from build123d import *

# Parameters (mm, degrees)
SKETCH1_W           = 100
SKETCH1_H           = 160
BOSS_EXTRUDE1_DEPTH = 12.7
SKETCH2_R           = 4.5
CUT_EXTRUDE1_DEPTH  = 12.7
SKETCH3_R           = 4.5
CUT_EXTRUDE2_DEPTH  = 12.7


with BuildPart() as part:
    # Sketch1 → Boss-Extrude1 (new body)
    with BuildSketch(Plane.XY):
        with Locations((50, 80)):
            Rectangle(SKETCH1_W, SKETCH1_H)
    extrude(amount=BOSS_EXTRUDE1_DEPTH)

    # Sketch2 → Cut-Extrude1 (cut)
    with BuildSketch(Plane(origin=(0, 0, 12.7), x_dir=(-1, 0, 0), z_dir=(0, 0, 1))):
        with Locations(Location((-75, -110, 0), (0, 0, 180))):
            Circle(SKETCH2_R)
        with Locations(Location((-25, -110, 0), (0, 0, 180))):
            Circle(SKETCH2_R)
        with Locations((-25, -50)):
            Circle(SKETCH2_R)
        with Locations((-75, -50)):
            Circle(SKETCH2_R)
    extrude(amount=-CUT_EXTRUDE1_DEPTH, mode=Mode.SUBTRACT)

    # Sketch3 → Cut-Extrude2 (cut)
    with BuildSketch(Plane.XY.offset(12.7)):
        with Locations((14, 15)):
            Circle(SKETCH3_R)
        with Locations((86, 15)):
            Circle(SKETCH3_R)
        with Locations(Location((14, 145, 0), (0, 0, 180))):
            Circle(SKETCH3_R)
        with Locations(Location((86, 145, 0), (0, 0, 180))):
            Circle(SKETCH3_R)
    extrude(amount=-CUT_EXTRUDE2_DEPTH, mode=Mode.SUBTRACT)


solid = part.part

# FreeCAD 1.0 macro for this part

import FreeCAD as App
import Part
import Sketcher

V = App.Vector


def add_polygon(sketch, points):
    """Adds a closed chain of lines whose ends are joined by coincident constraints."""
    first, n = sketch.GeometryCount, len(points)
    for a, b in zip(points, points[1:] + points[:1]):
        sketch.addGeometry(Part.LineSegment(App.Vector(*a, 0), App.Vector(*b, 0)), False)
    for i in range(n):
        sketch.addConstraint(Sketcher.Constraint("Coincident", first + i, 2, first + (i + 1) % n, 1))

doc = App.newDocument("Part")
body = doc.addObject("PartDesign::Body", "Body")

# Sketch on XY plane
sketch1 = doc.addObject("Sketcher::SketchObject", "Sketch")
body.addObject(sketch1)
sketch1.AttachmentSupport = (doc.XY_Plane, [""])
sketch1.MapMode = "FlatFace"
add_polygon(sketch1, [(0, 160), (0, 0), (100, 0), (100, 160)])  # lines 0-3
sketch1.addConstraint(Sketcher.Constraint("Vertical", 0))
sketch1.addConstraint(Sketcher.Constraint("Horizontal", 1))
sketch1.addConstraint(Sketcher.Constraint("Vertical", 2))
sketch1.addConstraint(Sketcher.Constraint("Horizontal", 3))
sketch1.addConstraint(Sketcher.Constraint("Coincident", 0, 2, -1, 1))
sketch1.addConstraint(Sketcher.Constraint("DistanceX", 1, 1, 1, 2, 100.0))
sketch1.addConstraint(Sketcher.Constraint("DistanceY", 0, 2, 0, 1, 160.0))
pad1 = doc.addObject("PartDesign::Pad", "Pad")
body.addObject(pad1)
pad1.Profile = sketch1
pad1.Length = 12.7

# Sketch on XY plane
sketch2 = doc.addObject("Sketcher::SketchObject", "Sketch001")
body.addObject(sketch2)
sketch2.AttachmentSupport = (doc.XY_Plane, [""])
sketch2.MapMode = "FlatFace"
sketch2.AttachmentOffset = App.Placement(V(0, 0, 12.7), App.Rotation())
sketch2.addGeometry(Part.Circle(V(75, 110, 0), V(0, 0, 1), 4.5), False)
sketch2.addGeometry(Part.Circle(V(25, 110, 0), V(0, 0, 1), 4.5), False)
sketch2.addGeometry(Part.Circle(V(25, 50, 0), V(0, 0, 1), 4.5), False)
sketch2.addGeometry(Part.Circle(V(75, 50, 0), V(0, 0, 1), 4.5), False)
sketch2.addConstraint(Sketcher.Constraint("Equal", 0, 1))
sketch2.addConstraint(Sketcher.Constraint("Equal", 1, 2))
sketch2.addConstraint(Sketcher.Constraint("Equal", 2, 3))
sketch2.addConstraint(Sketcher.Constraint("Horizontal", 0, 3, 1, 3))
sketch2.addConstraint(Sketcher.Constraint("Horizontal", 2, 3, 3, 3))
sketch2.addConstraint(Sketcher.Constraint("Vertical", 1, 3, 2, 3))
sketch2.addConstraint(Sketcher.Constraint("Vertical", 0, 3, 3, 3))
sketch2.addConstraint(Sketcher.Constraint("Diameter", 0, 9.0))
sketch2.addConstraint(Sketcher.Constraint("DistanceX", -1, 1, 0, 3, 75.0))
sketch2.addConstraint(Sketcher.Constraint("DistanceY", -1, 1, 0, 3, 110.0))
sketch2.addConstraint(Sketcher.Constraint("DistanceX", -1, 1, 1, 3, 25.0))
sketch2.addConstraint(Sketcher.Constraint("DistanceY", -1, 1, 2, 3, 50.0))
pocket1 = doc.addObject("PartDesign::Pocket", "Pocket")
body.addObject(pocket1)
pocket1.Profile = sketch2
pocket1.Length = 12.7

# Sketch on XY plane
sketch3 = doc.addObject("Sketcher::SketchObject", "Sketch002")
body.addObject(sketch3)
sketch3.AttachmentSupport = (doc.XY_Plane, [""])
sketch3.MapMode = "FlatFace"
sketch3.AttachmentOffset = App.Placement(V(0, 0, 12.7), App.Rotation())
sketch3.addGeometry(Part.Circle(V(14, 15, 0), V(0, 0, 1), 4.5), False)
sketch3.addGeometry(Part.Circle(V(86, 15, 0), V(0, 0, 1), 4.5), False)
sketch3.addGeometry(Part.Circle(V(14, 145, 0), V(0, 0, 1), 4.5), False)
sketch3.addGeometry(Part.Circle(V(86, 145, 0), V(0, 0, 1), 4.5), False)
sketch3.addConstraint(Sketcher.Constraint("Equal", 0, 1))
sketch3.addConstraint(Sketcher.Constraint("Equal", 1, 2))
sketch3.addConstraint(Sketcher.Constraint("Equal", 2, 3))
sketch3.addConstraint(Sketcher.Constraint("Horizontal", 0, 3, 1, 3))
sketch3.addConstraint(Sketcher.Constraint("Horizontal", 2, 3, 3, 3))
sketch3.addConstraint(Sketcher.Constraint("Vertical", 0, 3, 2, 3))
sketch3.addConstraint(Sketcher.Constraint("Vertical", 1, 3, 3, 3))
sketch3.addConstraint(Sketcher.Constraint("Diameter", 0, 9.0))
sketch3.addConstraint(Sketcher.Constraint("DistanceX", -1, 1, 0, 3, 14.0))
sketch3.addConstraint(Sketcher.Constraint("DistanceY", -1, 1, 0, 3, 15.0))
sketch3.addConstraint(Sketcher.Constraint("DistanceX", -1, 1, 1, 3, 86.0))
sketch3.addConstraint(Sketcher.Constraint("DistanceY", -1, 1, 2, 3, 145.0))
pocket2 = doc.addObject("PartDesign::Pocket", "Pocket001")
body.addObject(pocket2)
pocket2.Profile = sketch3
pocket2.Length = 12.7

doc.recompute()
